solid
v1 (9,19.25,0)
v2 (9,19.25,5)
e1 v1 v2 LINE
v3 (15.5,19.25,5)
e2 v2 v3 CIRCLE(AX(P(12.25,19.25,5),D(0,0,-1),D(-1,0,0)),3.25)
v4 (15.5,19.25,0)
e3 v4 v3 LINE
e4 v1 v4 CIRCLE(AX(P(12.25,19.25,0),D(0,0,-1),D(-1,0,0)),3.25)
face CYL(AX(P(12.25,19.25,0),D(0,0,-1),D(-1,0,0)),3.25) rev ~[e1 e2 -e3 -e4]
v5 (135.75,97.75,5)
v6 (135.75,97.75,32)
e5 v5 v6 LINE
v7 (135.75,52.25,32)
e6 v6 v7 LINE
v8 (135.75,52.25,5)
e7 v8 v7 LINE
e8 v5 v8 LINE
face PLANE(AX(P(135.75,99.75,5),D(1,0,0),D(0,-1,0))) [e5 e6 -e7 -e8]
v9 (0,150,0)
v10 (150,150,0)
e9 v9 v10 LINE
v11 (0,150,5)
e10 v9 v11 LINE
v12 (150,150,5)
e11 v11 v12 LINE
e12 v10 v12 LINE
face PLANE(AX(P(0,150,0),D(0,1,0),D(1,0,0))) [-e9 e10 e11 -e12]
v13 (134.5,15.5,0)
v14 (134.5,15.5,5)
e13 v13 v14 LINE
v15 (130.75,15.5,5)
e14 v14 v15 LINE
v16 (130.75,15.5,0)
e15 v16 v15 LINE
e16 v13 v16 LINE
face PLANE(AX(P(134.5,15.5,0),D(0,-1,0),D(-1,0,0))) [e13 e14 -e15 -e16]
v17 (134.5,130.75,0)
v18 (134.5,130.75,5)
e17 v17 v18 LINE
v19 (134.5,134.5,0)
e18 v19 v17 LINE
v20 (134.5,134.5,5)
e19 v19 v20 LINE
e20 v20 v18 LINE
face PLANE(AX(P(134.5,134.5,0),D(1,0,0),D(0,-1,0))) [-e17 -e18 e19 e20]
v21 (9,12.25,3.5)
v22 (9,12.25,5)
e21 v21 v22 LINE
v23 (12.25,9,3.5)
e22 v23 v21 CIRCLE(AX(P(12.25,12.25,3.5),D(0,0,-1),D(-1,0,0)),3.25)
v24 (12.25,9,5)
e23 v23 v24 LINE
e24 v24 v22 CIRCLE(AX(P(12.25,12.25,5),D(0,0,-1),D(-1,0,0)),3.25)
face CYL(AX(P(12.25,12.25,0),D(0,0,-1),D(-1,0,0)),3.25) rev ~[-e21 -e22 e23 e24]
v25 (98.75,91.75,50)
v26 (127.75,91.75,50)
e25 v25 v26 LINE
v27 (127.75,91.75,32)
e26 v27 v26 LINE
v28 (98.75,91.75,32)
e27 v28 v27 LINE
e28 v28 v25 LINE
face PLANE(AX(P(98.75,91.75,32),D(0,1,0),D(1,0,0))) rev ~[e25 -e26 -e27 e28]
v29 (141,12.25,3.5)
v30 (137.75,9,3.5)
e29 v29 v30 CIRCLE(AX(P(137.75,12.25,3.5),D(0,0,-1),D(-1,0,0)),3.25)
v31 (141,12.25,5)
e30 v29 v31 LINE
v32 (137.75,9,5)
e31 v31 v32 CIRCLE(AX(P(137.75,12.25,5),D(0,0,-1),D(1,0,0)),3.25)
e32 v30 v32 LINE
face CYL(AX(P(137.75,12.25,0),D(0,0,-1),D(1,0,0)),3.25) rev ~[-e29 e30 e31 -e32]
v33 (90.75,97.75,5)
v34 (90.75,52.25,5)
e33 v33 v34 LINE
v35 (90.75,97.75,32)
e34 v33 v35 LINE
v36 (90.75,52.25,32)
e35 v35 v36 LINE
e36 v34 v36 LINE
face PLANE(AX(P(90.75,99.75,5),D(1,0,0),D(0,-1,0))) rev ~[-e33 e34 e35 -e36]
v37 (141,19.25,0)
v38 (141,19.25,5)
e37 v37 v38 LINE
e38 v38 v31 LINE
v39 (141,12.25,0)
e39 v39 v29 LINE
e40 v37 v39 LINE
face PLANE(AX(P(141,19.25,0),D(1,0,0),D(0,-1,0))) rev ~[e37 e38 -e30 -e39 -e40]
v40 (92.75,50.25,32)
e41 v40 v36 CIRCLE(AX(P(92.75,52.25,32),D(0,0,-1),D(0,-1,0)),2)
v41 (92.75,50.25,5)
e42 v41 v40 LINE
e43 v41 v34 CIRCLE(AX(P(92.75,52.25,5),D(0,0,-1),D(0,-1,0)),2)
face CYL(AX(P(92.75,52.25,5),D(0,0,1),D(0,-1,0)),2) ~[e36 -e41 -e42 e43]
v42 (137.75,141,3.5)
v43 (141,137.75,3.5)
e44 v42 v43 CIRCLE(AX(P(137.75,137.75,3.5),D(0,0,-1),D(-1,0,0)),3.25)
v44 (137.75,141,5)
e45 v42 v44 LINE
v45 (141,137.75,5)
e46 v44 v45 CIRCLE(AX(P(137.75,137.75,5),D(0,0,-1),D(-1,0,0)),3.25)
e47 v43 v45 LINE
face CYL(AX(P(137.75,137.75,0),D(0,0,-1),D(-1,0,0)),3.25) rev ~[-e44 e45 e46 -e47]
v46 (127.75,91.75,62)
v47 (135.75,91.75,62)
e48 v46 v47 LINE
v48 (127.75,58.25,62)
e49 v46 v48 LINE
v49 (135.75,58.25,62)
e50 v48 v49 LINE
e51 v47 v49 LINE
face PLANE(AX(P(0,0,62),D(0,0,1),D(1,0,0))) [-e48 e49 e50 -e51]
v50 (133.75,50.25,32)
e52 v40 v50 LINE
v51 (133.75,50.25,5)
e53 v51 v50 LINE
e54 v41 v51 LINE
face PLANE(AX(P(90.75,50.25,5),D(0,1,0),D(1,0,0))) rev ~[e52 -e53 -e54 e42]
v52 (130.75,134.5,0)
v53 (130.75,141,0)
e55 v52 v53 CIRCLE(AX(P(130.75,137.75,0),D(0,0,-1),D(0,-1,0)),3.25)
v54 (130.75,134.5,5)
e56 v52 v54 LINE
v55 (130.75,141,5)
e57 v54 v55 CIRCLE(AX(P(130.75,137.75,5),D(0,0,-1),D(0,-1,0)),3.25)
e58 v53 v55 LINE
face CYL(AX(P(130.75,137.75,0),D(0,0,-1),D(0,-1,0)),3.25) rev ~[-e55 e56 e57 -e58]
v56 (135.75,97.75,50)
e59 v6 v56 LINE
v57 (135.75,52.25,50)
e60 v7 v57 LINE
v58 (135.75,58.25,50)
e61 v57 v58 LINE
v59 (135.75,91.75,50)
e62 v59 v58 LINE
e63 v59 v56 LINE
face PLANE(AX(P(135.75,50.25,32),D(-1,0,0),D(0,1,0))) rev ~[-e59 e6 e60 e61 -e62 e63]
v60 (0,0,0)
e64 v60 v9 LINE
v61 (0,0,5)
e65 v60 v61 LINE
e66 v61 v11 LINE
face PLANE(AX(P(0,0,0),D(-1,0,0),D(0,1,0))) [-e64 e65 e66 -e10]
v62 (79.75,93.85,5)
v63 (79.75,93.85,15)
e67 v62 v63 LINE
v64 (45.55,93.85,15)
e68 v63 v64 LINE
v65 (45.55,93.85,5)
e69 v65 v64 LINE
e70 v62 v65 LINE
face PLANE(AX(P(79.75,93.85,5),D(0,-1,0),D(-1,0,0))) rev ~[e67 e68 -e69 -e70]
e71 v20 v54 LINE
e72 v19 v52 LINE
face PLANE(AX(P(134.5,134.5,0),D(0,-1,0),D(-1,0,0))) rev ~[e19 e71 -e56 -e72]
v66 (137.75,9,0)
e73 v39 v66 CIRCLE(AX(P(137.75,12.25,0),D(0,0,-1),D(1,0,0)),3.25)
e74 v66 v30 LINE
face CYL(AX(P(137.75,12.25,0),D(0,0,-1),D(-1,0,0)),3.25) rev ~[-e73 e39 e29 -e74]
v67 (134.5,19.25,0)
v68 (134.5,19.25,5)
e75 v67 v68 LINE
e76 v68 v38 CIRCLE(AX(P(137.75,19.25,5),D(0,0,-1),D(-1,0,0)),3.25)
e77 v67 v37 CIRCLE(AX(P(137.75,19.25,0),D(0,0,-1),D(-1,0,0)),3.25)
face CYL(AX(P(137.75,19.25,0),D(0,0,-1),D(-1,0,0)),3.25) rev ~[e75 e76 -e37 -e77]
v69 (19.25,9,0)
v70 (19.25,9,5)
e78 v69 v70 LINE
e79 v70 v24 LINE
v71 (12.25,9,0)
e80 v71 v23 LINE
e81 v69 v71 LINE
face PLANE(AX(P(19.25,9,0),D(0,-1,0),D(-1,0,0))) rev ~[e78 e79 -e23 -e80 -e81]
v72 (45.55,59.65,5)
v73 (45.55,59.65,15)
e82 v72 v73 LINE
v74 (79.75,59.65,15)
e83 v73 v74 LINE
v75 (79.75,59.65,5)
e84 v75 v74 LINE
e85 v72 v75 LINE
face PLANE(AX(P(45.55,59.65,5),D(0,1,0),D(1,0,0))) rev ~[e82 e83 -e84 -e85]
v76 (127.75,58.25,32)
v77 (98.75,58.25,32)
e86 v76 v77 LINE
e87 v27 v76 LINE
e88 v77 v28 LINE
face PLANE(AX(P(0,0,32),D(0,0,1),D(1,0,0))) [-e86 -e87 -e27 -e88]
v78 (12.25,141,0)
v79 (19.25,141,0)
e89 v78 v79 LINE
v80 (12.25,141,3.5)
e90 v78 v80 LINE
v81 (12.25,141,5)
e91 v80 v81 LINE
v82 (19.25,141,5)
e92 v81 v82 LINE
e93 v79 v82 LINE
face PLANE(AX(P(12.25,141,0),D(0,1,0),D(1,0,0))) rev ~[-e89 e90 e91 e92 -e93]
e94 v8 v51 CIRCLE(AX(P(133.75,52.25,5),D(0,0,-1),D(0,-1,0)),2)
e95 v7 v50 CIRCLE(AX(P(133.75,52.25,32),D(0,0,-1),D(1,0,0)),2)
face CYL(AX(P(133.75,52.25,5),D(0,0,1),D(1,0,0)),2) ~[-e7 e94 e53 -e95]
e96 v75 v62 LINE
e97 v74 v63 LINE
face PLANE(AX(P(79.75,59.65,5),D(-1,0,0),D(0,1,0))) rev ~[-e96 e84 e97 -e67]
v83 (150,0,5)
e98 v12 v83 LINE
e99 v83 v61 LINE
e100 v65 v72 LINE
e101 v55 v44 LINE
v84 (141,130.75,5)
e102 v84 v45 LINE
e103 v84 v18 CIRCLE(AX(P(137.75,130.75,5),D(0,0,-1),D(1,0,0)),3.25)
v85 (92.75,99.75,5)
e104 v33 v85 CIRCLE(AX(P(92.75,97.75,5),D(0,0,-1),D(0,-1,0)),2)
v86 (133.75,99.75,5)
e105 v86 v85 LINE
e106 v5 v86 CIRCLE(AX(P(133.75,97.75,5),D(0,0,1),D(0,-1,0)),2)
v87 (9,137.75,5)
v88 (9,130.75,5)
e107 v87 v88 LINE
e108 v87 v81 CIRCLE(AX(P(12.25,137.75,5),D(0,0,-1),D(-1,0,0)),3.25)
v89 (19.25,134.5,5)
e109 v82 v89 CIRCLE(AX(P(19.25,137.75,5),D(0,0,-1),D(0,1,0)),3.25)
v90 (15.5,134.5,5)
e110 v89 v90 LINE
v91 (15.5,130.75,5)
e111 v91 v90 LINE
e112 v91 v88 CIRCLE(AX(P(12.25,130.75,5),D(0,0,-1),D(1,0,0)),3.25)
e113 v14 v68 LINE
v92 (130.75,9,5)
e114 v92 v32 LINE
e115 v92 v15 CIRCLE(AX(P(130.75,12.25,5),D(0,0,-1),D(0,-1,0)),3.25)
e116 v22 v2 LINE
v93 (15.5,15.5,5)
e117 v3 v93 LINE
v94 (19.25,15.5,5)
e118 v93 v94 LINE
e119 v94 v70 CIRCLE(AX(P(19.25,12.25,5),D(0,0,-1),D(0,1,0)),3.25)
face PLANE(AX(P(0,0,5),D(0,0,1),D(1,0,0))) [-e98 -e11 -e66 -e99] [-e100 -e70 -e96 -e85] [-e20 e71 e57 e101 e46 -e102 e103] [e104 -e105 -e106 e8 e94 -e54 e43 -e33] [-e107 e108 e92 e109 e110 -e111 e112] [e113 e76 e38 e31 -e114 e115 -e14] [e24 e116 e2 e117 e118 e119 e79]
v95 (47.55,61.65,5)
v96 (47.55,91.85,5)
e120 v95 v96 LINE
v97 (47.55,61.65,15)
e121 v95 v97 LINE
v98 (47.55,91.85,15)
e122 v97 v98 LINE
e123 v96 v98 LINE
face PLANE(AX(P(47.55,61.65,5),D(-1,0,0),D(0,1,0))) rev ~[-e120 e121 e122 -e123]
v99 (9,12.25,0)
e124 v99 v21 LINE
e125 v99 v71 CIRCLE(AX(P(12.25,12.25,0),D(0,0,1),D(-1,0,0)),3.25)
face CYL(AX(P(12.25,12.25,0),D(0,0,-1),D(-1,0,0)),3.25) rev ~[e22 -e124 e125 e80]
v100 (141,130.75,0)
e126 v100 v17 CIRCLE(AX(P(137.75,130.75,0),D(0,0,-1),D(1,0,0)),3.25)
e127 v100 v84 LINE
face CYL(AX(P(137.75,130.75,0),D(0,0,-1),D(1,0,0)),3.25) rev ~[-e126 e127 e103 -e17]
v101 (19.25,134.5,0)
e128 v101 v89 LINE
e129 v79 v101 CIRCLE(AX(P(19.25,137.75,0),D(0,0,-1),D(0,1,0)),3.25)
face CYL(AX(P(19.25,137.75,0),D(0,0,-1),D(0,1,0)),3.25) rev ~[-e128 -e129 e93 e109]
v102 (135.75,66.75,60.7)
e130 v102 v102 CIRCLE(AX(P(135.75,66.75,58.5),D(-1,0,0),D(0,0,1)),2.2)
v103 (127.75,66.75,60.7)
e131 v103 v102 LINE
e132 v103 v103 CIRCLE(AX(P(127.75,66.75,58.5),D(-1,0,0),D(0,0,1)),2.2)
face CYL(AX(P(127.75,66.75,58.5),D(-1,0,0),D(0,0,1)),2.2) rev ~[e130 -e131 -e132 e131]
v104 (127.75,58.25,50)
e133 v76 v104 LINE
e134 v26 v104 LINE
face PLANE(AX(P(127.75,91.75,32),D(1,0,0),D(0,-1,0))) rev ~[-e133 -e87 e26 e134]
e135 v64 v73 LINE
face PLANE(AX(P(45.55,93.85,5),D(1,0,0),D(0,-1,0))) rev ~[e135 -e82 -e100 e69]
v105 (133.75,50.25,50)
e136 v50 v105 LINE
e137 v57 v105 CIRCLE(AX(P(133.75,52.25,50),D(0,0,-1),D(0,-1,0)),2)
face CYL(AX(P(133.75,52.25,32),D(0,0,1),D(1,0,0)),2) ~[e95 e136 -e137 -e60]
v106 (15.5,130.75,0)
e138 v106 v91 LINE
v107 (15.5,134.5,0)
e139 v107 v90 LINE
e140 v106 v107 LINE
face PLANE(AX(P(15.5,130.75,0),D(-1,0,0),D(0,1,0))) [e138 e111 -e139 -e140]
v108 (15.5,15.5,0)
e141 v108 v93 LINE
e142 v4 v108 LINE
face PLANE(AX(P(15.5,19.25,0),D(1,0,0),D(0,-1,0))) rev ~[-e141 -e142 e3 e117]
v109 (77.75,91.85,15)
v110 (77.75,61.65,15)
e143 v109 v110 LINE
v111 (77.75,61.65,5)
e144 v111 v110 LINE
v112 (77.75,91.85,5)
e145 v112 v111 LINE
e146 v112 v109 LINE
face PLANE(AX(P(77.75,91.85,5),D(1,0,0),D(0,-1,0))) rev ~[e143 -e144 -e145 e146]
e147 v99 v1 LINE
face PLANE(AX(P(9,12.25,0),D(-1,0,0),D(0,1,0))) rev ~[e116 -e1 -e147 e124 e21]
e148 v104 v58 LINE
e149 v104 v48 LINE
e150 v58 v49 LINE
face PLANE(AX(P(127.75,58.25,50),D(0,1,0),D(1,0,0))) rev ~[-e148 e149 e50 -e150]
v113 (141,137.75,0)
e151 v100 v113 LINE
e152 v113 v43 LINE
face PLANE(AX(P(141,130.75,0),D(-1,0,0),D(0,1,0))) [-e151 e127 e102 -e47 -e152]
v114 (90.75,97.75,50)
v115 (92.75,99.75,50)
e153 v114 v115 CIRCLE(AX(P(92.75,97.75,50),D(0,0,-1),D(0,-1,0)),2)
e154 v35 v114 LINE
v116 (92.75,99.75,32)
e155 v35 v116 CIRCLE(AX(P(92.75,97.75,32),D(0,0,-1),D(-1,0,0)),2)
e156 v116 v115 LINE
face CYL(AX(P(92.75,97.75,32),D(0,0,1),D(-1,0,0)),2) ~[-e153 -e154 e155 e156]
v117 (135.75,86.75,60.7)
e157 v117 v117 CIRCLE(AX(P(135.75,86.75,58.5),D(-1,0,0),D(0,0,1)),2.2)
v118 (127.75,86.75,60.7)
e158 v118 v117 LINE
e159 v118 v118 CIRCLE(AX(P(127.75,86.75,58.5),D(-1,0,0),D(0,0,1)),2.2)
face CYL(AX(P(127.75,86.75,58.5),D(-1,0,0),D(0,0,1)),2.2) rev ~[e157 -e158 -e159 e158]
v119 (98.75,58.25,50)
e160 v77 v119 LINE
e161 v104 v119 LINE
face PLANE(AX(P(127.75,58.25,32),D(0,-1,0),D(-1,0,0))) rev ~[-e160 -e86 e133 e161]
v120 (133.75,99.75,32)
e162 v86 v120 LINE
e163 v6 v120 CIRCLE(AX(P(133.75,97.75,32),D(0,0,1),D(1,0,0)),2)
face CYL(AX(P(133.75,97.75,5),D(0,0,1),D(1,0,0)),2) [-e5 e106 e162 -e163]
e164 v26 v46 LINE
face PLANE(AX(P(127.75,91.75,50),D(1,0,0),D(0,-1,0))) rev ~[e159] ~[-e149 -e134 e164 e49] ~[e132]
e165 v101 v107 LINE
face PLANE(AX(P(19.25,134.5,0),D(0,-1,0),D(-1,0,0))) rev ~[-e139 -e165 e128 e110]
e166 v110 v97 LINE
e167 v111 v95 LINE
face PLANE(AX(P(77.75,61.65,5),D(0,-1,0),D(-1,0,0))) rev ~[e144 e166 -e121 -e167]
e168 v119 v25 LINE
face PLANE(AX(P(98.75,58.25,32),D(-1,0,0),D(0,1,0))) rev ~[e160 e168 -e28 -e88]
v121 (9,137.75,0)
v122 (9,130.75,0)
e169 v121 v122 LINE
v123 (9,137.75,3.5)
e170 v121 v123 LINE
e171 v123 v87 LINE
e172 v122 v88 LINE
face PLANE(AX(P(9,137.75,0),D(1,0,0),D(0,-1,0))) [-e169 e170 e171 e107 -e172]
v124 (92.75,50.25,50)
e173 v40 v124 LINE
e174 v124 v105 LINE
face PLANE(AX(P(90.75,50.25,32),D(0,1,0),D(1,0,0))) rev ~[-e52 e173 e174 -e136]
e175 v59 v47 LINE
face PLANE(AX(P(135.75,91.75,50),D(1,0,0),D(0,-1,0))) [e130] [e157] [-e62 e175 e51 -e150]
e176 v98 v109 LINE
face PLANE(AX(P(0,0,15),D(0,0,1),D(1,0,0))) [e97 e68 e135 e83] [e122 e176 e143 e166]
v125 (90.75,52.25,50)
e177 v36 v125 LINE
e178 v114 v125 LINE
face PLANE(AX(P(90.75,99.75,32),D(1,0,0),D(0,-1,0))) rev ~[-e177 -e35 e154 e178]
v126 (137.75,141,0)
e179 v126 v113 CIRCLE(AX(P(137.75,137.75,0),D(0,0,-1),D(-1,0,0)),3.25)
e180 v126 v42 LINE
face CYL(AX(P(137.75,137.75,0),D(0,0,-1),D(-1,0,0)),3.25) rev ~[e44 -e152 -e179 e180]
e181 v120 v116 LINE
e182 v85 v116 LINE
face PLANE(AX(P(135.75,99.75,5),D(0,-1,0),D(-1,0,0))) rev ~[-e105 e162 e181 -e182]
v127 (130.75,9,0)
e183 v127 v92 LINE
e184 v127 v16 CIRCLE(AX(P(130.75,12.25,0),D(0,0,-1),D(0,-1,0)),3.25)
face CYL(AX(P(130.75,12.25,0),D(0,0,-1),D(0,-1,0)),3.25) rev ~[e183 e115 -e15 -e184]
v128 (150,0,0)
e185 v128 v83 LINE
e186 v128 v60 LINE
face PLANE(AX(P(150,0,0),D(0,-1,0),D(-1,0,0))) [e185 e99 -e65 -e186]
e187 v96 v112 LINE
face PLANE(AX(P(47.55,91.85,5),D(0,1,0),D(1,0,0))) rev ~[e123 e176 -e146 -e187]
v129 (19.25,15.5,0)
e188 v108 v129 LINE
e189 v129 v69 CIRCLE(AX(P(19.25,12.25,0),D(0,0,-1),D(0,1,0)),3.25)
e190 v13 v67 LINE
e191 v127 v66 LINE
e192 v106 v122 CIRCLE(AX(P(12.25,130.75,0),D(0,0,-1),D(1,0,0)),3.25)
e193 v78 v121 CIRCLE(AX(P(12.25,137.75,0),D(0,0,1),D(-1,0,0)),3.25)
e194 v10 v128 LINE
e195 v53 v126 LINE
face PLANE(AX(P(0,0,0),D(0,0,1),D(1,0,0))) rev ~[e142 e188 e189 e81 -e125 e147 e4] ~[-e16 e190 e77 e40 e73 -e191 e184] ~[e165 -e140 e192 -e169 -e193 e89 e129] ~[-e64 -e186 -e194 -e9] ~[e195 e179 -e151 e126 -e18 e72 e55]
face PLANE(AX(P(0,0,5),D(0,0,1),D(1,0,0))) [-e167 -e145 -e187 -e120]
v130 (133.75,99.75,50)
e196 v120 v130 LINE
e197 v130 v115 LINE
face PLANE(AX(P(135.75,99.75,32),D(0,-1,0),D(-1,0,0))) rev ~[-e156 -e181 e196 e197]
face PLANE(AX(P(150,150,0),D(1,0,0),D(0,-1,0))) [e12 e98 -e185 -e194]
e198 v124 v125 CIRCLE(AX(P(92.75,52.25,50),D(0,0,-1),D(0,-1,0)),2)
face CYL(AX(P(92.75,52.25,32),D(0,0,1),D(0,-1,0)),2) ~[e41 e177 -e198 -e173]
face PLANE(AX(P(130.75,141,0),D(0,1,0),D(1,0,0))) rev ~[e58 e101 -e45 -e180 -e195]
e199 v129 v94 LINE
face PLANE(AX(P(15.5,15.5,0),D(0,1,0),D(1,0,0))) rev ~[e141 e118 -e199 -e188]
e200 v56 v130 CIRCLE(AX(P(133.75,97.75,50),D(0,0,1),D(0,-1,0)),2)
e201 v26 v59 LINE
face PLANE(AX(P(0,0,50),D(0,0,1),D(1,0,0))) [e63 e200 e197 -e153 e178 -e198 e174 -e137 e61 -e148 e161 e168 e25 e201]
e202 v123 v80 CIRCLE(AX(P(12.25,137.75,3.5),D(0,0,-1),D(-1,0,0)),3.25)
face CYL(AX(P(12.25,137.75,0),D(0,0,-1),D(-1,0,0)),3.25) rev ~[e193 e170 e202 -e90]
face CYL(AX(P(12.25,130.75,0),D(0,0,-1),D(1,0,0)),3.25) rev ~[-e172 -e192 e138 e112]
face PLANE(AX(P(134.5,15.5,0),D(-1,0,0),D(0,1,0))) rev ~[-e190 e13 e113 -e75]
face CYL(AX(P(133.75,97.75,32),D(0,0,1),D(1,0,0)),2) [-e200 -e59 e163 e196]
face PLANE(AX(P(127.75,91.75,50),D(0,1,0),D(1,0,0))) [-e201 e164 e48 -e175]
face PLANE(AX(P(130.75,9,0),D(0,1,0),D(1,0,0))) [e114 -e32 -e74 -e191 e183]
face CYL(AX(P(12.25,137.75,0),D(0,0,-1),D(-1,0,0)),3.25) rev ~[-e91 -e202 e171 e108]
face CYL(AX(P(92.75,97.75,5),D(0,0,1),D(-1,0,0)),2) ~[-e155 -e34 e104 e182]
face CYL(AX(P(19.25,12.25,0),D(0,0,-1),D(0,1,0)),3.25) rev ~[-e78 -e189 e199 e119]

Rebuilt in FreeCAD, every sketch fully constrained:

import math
import FreeCAD as App
import Part
import Sketcher


def edges_at(feature, points):
    """Names of the edges that pass closest to the given points."""
    edges = feature.Shape.Edges
    near = lambda p: min(range(len(edges)), key=lambda i: edges[i].distToShape(Part.Vertex(*p))[0])
    return sorted({f"Edge{near(p) + 1}" for p in points})


def add_polygon(sketch, points):
    """Adds a closed chain of lines whose ends are joined by coincident constraints."""
    first, n = sketch.GeometryCount, len(points)
    for a, b in zip(points, points[1:] + points[:1]):
        sketch.addGeometry(Part.LineSegment(App.Vector(*a, 0), App.Vector(*b, 0)), False)
    for i in range(n):
        sketch.addConstraint(Sketcher.Constraint("Coincident", first + i, 2, first + (i + 1) % n, 1))

doc = App.newDocument("Part")
body = doc.addObject("PartDesign::Body", "Body")

# Sketch on XY plane
sketch1 = doc.addObject("Sketcher::SketchObject", "Sketch")
body.addObject(sketch1)
sketch1.AttachmentSupport = (doc.XY_Plane, [""])
sketch1.MapMode = "FlatFace"
add_polygon(sketch1, [(150, 150), (0, 150), (0, 0), (150, 0)])  # lines 0-3
sketch1.addConstraint(Sketcher.Constraint("Horizontal", 0))
sketch1.addConstraint(Sketcher.Constraint("Vertical", 1))
sketch1.addConstraint(Sketcher.Constraint("Horizontal", 2))
sketch1.addConstraint(Sketcher.Constraint("Vertical", 3))
sketch1.addConstraint(Sketcher.Constraint("Coincident", 1, 2, -1, 1))
sketch1.addConstraint(Sketcher.Constraint("Equal", 2, 1))
sketch1.addConstraint(Sketcher.Constraint("DistanceX", 0, 2, 0, 1, 150.0))
pad1 = doc.addObject("PartDesign::Pad", "Pad")
body.addObject(pad1)
pad1.Profile = sketch1
pad1.Length = 5

# Sketch on XY plane
sketch2 = doc.addObject("Sketcher::SketchObject", "Sketch001")
body.addObject(sketch2)
sketch2.AttachmentSupport = (doc.XY_Plane, [""])
sketch2.MapMode = "FlatFace"
sketch2.addGeometry(Part.Circle(App.Vector(137.8, 12.2, 0), App.Vector(0, 0, 1), 3.2), False)
sketch2.addGeometry(Part.Circle(App.Vector(12.2, 12.2, 0), App.Vector(0, 0, 1), 3.2), False)
sketch2.addGeometry(Part.Circle(App.Vector(137.8, 137.8, 0), App.Vector(0, 0, 1), 3.2), False)
sketch2.addGeometry(Part.Circle(App.Vector(12.2, 137.8, 0), App.Vector(0, 0, 1), 3.2), False)
sketch2.addConstraint(Sketcher.Constraint("Equal", 0, 1))
sketch2.addConstraint(Sketcher.Constraint("Equal", 1, 2))
sketch2.addConstraint(Sketcher.Constraint("Equal", 2, 3))
sketch2.addConstraint(Sketcher.Constraint("Horizontal", 0, 3, 1, 3))
sketch2.addConstraint(Sketcher.Constraint("Horizontal", 2, 3, 3, 3))
sketch2.addConstraint(Sketcher.Constraint("Vertical", 0, 3, 2, 3))
sketch2.addConstraint(Sketcher.Constraint("Vertical", 1, 3, 3, 3))
sketch2.addConstraint(Sketcher.Constraint("Diameter", 0, 6.5))
sketch2.addConstraint(Sketcher.Constraint("DistanceX", 1, 3, 0, 3, 125.5))
sketch2.addConstraint(Sketcher.Constraint("DistanceY", 0, 3, 2, 3, 125.5))
sketch2.addConstraint(Sketcher.Constraint("DistanceY", -1, 1, 0, 3, 12.25))
sketch2.addConstraint(Sketcher.Constraint("DistanceX", -1, 1, 1, 3, 12.25))
pocket1 = doc.addObject("PartDesign::Pocket", "Pocket")
body.addObject(pocket1)
pocket1.Profile = sketch2
pocket1.Length = 3.5
pocket1.Reversed = True

# Sketch on XY plane
sketch3 = doc.addObject("Sketcher::SketchObject", "Sketch002")
body.addObject(sketch3)
sketch3.AttachmentSupport = (doc.XY_Plane, [""])
sketch3.MapMode = "FlatFace"
sketch3.addGeometry(Part.ArcOfCircle(Part.Circle(App.Vector(12.2, 137.8, 0), App.Vector(0, 0, 1), 3.2), math.radians(90), math.radians(180)), False)
sketch3.addGeometry(Part.LineSegment(App.Vector(12.2, 141, 0), App.Vector(19.2, 141, 0)), False)
sketch3.addGeometry(Part.ArcOfCircle(Part.Circle(App.Vector(19.2, 137.8, 0), App.Vector(0, 0, 1), 3.2), math.radians(-90), math.radians(90)), False)
sketch3.addGeometry(Part.LineSegment(App.Vector(19.2, 134.5, 0), App.Vector(15.5, 134.5, 0)), False)
sketch3.addGeometry(Part.LineSegment(App.Vector(15.5, 134.5, 0), App.Vector(15.5, 130.8, 0)), False)
sketch3.addGeometry(Part.ArcOfCircle(Part.Circle(App.Vector(12.2, 130.8, 0), App.Vector(0, 0, 1), 3.2), math.radians(180), math.radians(360)), False)
sketch3.addGeometry(Part.LineSegment(App.Vector(9, 130.8, 0), App.Vector(9, 137.8, 0)), False)
sketch3.addConstraint(Sketcher.Constraint("Tangent", 0, 1, 1, 1))
sketch3.addConstraint(Sketcher.Constraint("Tangent", 1, 2, 2, 2))
sketch3.addConstraint(Sketcher.Constraint("Tangent", 2, 1, 3, 1))
sketch3.addConstraint(Sketcher.Constraint("Coincident", 3, 2, 4, 1))
sketch3.addConstraint(Sketcher.Constraint("Tangent", 4, 2, 5, 2))
sketch3.addConstraint(Sketcher.Constraint("Tangent", 5, 1, 6, 1))
sketch3.addConstraint(Sketcher.Constraint("Tangent", 6, 2, 0, 2))
sketch3.addConstraint(Sketcher.Constraint("Horizontal", 1))
sketch3.addConstraint(Sketcher.Constraint("Horizontal", 3))
sketch3.addConstraint(Sketcher.Constraint("Vertical", 4))
sketch3.addConstraint(Sketcher.Constraint("Vertical", 6))
sketch3.addConstraint(Sketcher.Constraint("Equal", 0, 2))
sketch3.addConstraint(Sketcher.Constraint("Equal", 2, 5))
sketch3.addConstraint(Sketcher.Constraint("Equal", 3, 4))
sketch3.addConstraint(Sketcher.Constraint("DistanceX", 1, 1, 1, 2, 7.0))
sketch3.addConstraint(Sketcher.Constraint("Radius", 0, 3.25))
sketch3.addConstraint(Sketcher.Constraint("DistanceY", -1, 1, 0, 1, 141.0))
sketch3.addConstraint(Sketcher.Constraint("DistanceX", -1, 1, 5, 1, 9.0))
pocket2 = doc.addObject("PartDesign::Pocket", "Pocket001")
body.addObject(pocket2)
pocket2.Profile = sketch3
pocket2.Length = 5
pocket2.Reversed = True

# Sketch on XY plane
sketch4 = doc.addObject("Sketcher::SketchObject", "Sketch003")
body.addObject(sketch4)
sketch4.AttachmentSupport = (doc.XY_Plane, [""])
sketch4.MapMode = "FlatFace"
sketch4.addGeometry(Part.ArcOfCircle(Part.Circle(App.Vector(12.2, 12.2, 0), App.Vector(0, 0, 1), 3.2), math.radians(180), math.radians(270)), False)
sketch4.addGeometry(Part.LineSegment(App.Vector(9, 12.2, 0), App.Vector(9, 19.2, 0)), False)
sketch4.addGeometry(Part.ArcOfCircle(Part.Circle(App.Vector(12.2, 19.2, 0), App.Vector(0, 0, 1), 3.2), math.radians(0), math.radians(180)), False)
sketch4.addGeometry(Part.LineSegment(App.Vector(15.5, 19.2, 0), App.Vector(15.5, 15.5, 0)), False)
sketch4.addGeometry(Part.LineSegment(App.Vector(15.5, 15.5, 0), App.Vector(19.2, 15.5, 0)), False)
sketch4.addGeometry(Part.ArcOfCircle(Part.Circle(App.Vector(19.2, 12.2, 0), App.Vector(0, 0, 1), 3.2), math.radians(-90), math.radians(90)), False)
sketch4.addGeometry(Part.LineSegment(App.Vector(19.2, 9, 0), App.Vector(12.2, 9, 0)), False)
sketch4.addGeometry(Part.ArcOfCircle(Part.Circle(App.Vector(137.8, 12.2, 0), App.Vector(0, 0, 1), 3.2), math.radians(-90), math.radians(0)), False)
sketch4.addGeometry(Part.LineSegment(App.Vector(137.8, 9, 0), App.Vector(130.8, 9, 0)), False)
sketch4.addGeometry(Part.ArcOfCircle(Part.Circle(App.Vector(130.8, 12.2, 0), App.Vector(0, 0, 1), 3.2), math.radians(90), math.radians(270)), False)
sketch4.addGeometry(Part.LineSegment(App.Vector(130.8, 15.5, 0), App.Vector(134.5, 15.5, 0)), False)
sketch4.addGeometry(Part.LineSegment(App.Vector(134.5, 15.5, 0), App.Vector(134.5, 19.2, 0)), False)
sketch4.addGeometry(Part.ArcOfCircle(Part.Circle(App.Vector(137.8, 19.2, 0), App.Vector(0, 0, 1), 3.2), math.radians(0), math.radians(180)), False)
sketch4.addGeometry(Part.LineSegment(App.Vector(141, 19.2, 0), App.Vector(141, 12.2, 0)), False)
sketch4.addGeometry(Part.ArcOfCircle(Part.Circle(App.Vector(137.8, 137.8, 0), App.Vector(0, 0, 1), 3.2), math.radians(0), math.radians(90)), False)
sketch4.addGeometry(Part.LineSegment(App.Vector(141, 137.8, 0), App.Vector(141, 130.8, 0)), False)
sketch4.addGeometry(Part.ArcOfCircle(Part.Circle(App.Vector(137.8, 130.8, 0), App.Vector(0, 0, 1), 3.2), math.radians(180), math.radians(360)), False)
sketch4.addGeometry(Part.LineSegment(App.Vector(134.5, 130.8, 0), App.Vector(134.5, 134.5, 0)), False)
sketch4.addGeometry(Part.LineSegment(App.Vector(134.5, 134.5, 0), App.Vector(130.8, 134.5, 0)), False)
sketch4.addGeometry(Part.ArcOfCircle(Part.Circle(App.Vector(130.8, 137.8, 0), App.Vector(0, 0, 1), 3.2), math.radians(90), math.radians(270)), False)
sketch4.addGeometry(Part.LineSegment(App.Vector(130.8, 141, 0), App.Vector(137.8, 141, 0)), False)
sketch4.addConstraint(Sketcher.Constraint("Tangent", 0, 1, 1, 1))
sketch4.addConstraint(Sketcher.Constraint("Tangent", 1, 2, 2, 2))
sketch4.addConstraint(Sketcher.Constraint("Tangent", 2, 1, 3, 1))
sketch4.addConstraint(Sketcher.Constraint("Coincident", 3, 2, 4, 1))
sketch4.addConstraint(Sketcher.Constraint("Tangent", 4, 2, 5, 2))
sketch4.addConstraint(Sketcher.Constraint("Tangent", 5, 1, 6, 1))
sketch4.addConstraint(Sketcher.Constraint("Tangent", 6, 2, 0, 2))
sketch4.addConstraint(Sketcher.Constraint("Tangent", 7, 1, 8, 1))
sketch4.addConstraint(Sketcher.Constraint("Tangent", 8, 2, 9, 2))
sketch4.addConstraint(Sketcher.Constraint("Tangent", 9, 1, 10, 1))
sketch4.addConstraint(Sketcher.Constraint("Coincident", 10, 2, 11, 1))
sketch4.addConstraint(Sketcher.Constraint("Tangent", 11, 2, 12, 2))
sketch4.addConstraint(Sketcher.Constraint("Tangent", 12, 1, 13, 1))
sketch4.addConstraint(Sketcher.Constraint("Tangent", 13, 2, 7, 2))
sketch4.addConstraint(Sketcher.Constraint("Tangent", 14, 1, 15, 1))
sketch4.addConstraint(Sketcher.Constraint("Tangent", 15, 2, 16, 2))
sketch4.addConstraint(Sketcher.Constraint("Tangent", 16, 1, 17, 1))
sketch4.addConstraint(Sketcher.Constraint("Coincident", 17, 2, 18, 1))
sketch4.addConstraint(Sketcher.Constraint("Tangent", 18, 2, 19, 2))
sketch4.addConstraint(Sketcher.Constraint("Tangent", 19, 1, 20, 1))
sketch4.addConstraint(Sketcher.Constraint("Tangent", 20, 2, 14, 2))
sketch4.addConstraint(Sketcher.Constraint("Vertical", 1))
sketch4.addConstraint(Sketcher.Constraint("Vertical", 3))
sketch4.addConstraint(Sketcher.Constraint("Horizontal", 4))
sketch4.addConstraint(Sketcher.Constraint("Horizontal", 6))
sketch4.addConstraint(Sketcher.Constraint("Horizontal", 8))
sketch4.addConstraint(Sketcher.Constraint("Horizontal", 10))
sketch4.addConstraint(Sketcher.Constraint("Vertical", 11))
sketch4.addConstraint(Sketcher.Constraint("Vertical", 13))
sketch4.addConstraint(Sketcher.Constraint("Vertical", 15))
sketch4.addConstraint(Sketcher.Constraint("Vertical", 17))
sketch4.addConstraint(Sketcher.Constraint("Horizontal", 18))
sketch4.addConstraint(Sketcher.Constraint("Horizontal", 20))
sketch4.addConstraint(Sketcher.Constraint("Equal", 0, 2))
sketch4.addConstraint(Sketcher.Constraint("Equal", 2, 5))
sketch4.addConstraint(Sketcher.Constraint("Equal", 5, 7))
sketch4.addConstraint(Sketcher.Constraint("Equal", 7, 9))
sketch4.addConstraint(Sketcher.Constraint("Equal", 9, 12))
sketch4.addConstraint(Sketcher.Constraint("Equal", 12, 14))
sketch4.addConstraint(Sketcher.Constraint("Equal", 14, 16))
sketch4.addConstraint(Sketcher.Constraint("Equal", 16, 19))
sketch4.addConstraint(Sketcher.Constraint("Horizontal", 5, 3, 7, 3))
sketch4.addConstraint(Sketcher.Constraint("Horizontal", 2, 3, 12, 3))
sketch4.addConstraint(Sketcher.Constraint("Vertical", 12, 3, 14, 3))
sketch4.addConstraint(Sketcher.Constraint("Vertical", 9, 3, 19, 3))
sketch4.addConstraint(Sketcher.Constraint("Equal", 6, 8))
sketch4.addConstraint(Sketcher.Constraint("Equal", 20, 1))
sketch4.addConstraint(Sketcher.Constraint("Equal", 13, 15))
sketch4.addConstraint(Sketcher.Constraint("DistanceX", 6, 2, 6, 1, 7.0))
sketch4.addConstraint(Sketcher.Constraint("Radius", 0, 3.25))
sketch4.addConstraint(Sketcher.Constraint("DistanceX", -1, 1, 0, 1, 9.0))
sketch4.addConstraint(Sketcher.Constraint("DistanceY", -1, 1, 5, 1, 9.0))
sketch4.addConstraint(Sketcher.Constraint("DistanceX", -1, 1, 12, 1, 141.0))
sketch4.addConstraint(Sketcher.Constraint("DistanceY", -1, 1, 19, 1, 141.0))
pocket3 = doc.addObject("PartDesign::Pocket", "Pocket002")
body.addObject(pocket3)
pocket3.Profile = sketch4
pocket3.Length = 5
pocket3.Reversed = True

# Sketch on XY plane
sketch5 = doc.addObject("Sketcher::SketchObject", "Sketch004")
body.addObject(sketch5)
sketch5.AttachmentSupport = (doc.XY_Plane, [""])
sketch5.MapMode = "FlatFace"
sketch5.AttachmentOffset = App.Placement(App.Vector(0, 0, 5), App.Rotation())
add_polygon(sketch5, [(136, 100), (91, 100), (91, 50), (136, 50)])  # lines 0-3
sketch5.addConstraint(Sketcher.Constraint("Horizontal", 0))
sketch5.addConstraint(Sketcher.Constraint("Vertical", 1))
sketch5.addConstraint(Sketcher.Constraint("Horizontal", 2))
sketch5.addConstraint(Sketcher.Constraint("Vertical", 3))
sketch5.addConstraint(Sketcher.Constraint("DistanceX", 0, 2, 0, 1, 45.0))
sketch5.addConstraint(Sketcher.Constraint("DistanceY", 1, 2, 1, 1, 49.5))
sketch5.addConstraint(Sketcher.Constraint("DistanceX", -1, 1, 0, 2, 90.75))
sketch5.addConstraint(Sketcher.Constraint("DistanceY", -1, 1, 0, 2, 99.75))
pad2 = doc.addObject("PartDesign::Pad", "Pad001")
body.addObject(pad2)
pad2.Profile = sketch5
pad2.Length = 27

# Sketch on XY plane
sketch6 = doc.addObject("Sketcher::SketchObject", "Sketch005")
body.addObject(sketch6)
sketch6.AttachmentSupport = (doc.XY_Plane, [""])
sketch6.MapMode = "FlatFace"
sketch6.AttachmentOffset = App.Placement(App.Vector(0, 0, 32), App.Rotation())
add_polygon(sketch6, [(136, 100), (91, 100), (91, 50), (136, 50)])  # lines 0-3
add_polygon(sketch6, [(128, 92), (128, 58), (99, 58), (99, 92)])  # lines 4-7
sketch6.addConstraint(Sketcher.Constraint("Horizontal", 0))
sketch6.addConstraint(Sketcher.Constraint("Vertical", 1))
sketch6.addConstraint(Sketcher.Constraint("Horizontal", 2))
sketch6.addConstraint(Sketcher.Constraint("Vertical", 3))
sketch6.addConstraint(Sketcher.Constraint("Vertical", 4))
sketch6.addConstraint(Sketcher.Constraint("Horizontal", 5))
sketch6.addConstraint(Sketcher.Constraint("Vertical", 6))
sketch6.addConstraint(Sketcher.Constraint("Horizontal", 7))
sketch6.addConstraint(Sketcher.Constraint("DistanceX", 4, 2, 2, 2, 8.0))
sketch6.addConstraint(Sketcher.Constraint("DistanceY", 2, 2, 4, 2, 8.0))
sketch6.addConstraint(Sketcher.Constraint("DistanceX", 1, 2, 5, 2, 8.0))
sketch6.addConstraint(Sketcher.Constraint("DistanceY", 6, 2, 0, 2, 8.0))
sketch6.addConstraint(Sketcher.Constraint("DistanceX", 0, 2, 0, 1, 45.0))
sketch6.addConstraint(Sketcher.Constraint("DistanceY", 1, 2, 1, 1, 49.5))
sketch6.addConstraint(Sketcher.Constraint("DistanceX", -1, 1, 0, 2, 90.75))
sketch6.addConstraint(Sketcher.Constraint("DistanceY", -1, 1, 0, 2, 99.75))
pad3 = doc.addObject("PartDesign::Pad", "Pad002")
body.addObject(pad3)
pad3.Profile = sketch6
pad3.Length = 18

# Sketch on XY plane
sketch7 = doc.addObject("Sketcher::SketchObject", "Sketch006")
body.addObject(sketch7)
sketch7.AttachmentSupport = (doc.XY_Plane, [""])
sketch7.MapMode = "FlatFace"
sketch7.AttachmentOffset = App.Placement(App.Vector(0, 0, 50), App.Rotation())
add_polygon(sketch7, [(136, 92), (128, 92), (128, 58), (136, 58)])  # lines 0-3
sketch7.addConstraint(Sketcher.Constraint("Horizontal", 0))
sketch7.addConstraint(Sketcher.Constraint("Vertical", 1))
sketch7.addConstraint(Sketcher.Constraint("Horizontal", 2))
sketch7.addConstraint(Sketcher.Constraint("Vertical", 3))
sketch7.addConstraint(Sketcher.Constraint("DistanceX", 0, 2, 0, 1, 8.0))
sketch7.addConstraint(Sketcher.Constraint("DistanceY", 1, 2, 1, 1, 33.5))
sketch7.addConstraint(Sketcher.Constraint("DistanceX", -1, 1, 0, 2, 127.75))
sketch7.addConstraint(Sketcher.Constraint("DistanceY", -1, 1, 0, 2, 91.75))
pad4 = doc.addObject("PartDesign::Pad", "Pad003")
body.addObject(pad4)
pad4.Profile = sketch7
pad4.Length = 12

# Sketch on YZ plane
sketch8 = doc.addObject("Sketcher::SketchObject", "Sketch007")
body.addObject(sketch8)
sketch8.AttachmentSupport = (doc.YZ_Plane, [""])
sketch8.MapMode = "FlatFace"
sketch8.AttachmentOffset = App.Placement(App.Vector(0, 0, 127.75), App.Rotation())
sketch8.addGeometry(Part.Circle(App.Vector(86.8, 58.5, 0), App.Vector(0, 0, 1), 2.2), False)
sketch8.addGeometry(Part.Circle(App.Vector(66.8, 58.5, 0), App.Vector(0, 0, 1), 2.2), False)
sketch8.addConstraint(Sketcher.Constraint("Equal", 0, 1))
sketch8.addConstraint(Sketcher.Constraint("Horizontal", 0, 3, 1, 3))
sketch8.addConstraint(Sketcher.Constraint("Diameter", 0, 4.4))
sketch8.addConstraint(Sketcher.Constraint("DistanceX", 1, 3, 0, 3, 20.0))
sketch8.addConstraint(Sketcher.Constraint("DistanceY", -1, 1, 0, 3, 58.5))
sketch8.addConstraint(Sketcher.Constraint("DistanceX", -1, 1, 0, 3, 86.75))
pocket4 = doc.addObject("PartDesign::Pocket", "Pocket003")
body.addObject(pocket4)
pocket4.Profile = sketch8
pocket4.Length = 8
pocket4.Reversed = True
doc.recompute()

fillet = doc.addObject("PartDesign::Fillet", "Fillet")
body.addObject(fillet)
fillet.Base = (pocket4, edges_at(pocket4, [
    (90.75, 99.75, 41),
    (90.75, 99.75, 18.5),
    (135.75, 99.75, 41),
    (135.75, 99.75, 18.5),
    (90.75, 50.25, 41),
    (90.75, 50.25, 18.5),
    (135.75, 50.25, 41),
    (135.75, 50.25, 18.5),
]))
fillet.Radius = 2

# Sketch on XY plane
sketch9 = doc.addObject("Sketcher::SketchObject", "Sketch008")
body.addObject(sketch9)
sketch9.AttachmentSupport = (doc.XY_Plane, [""])
sketch9.MapMode = "FlatFace"
sketch9.AttachmentOffset = App.Placement(App.Vector(0, 0, 5), App.Rotation())
add_polygon(sketch9, [(46, 94), (46, 60), (80, 60), (80, 94)])  # lines 0-3
add_polygon(sketch9, [(78, 92), (78, 62), (48, 62), (48, 92)])  # lines 4-7
sketch9.addConstraint(Sketcher.Constraint("Vertical", 0))
sketch9.addConstraint(Sketcher.Constraint("Horizontal", 1))
sketch9.addConstraint(Sketcher.Constraint("Vertical", 2))
sketch9.addConstraint(Sketcher.Constraint("Horizontal", 3))
sketch9.addConstraint(Sketcher.Constraint("Vertical", 4))
sketch9.addConstraint(Sketcher.Constraint("Horizontal", 5))
sketch9.addConstraint(Sketcher.Constraint("Vertical", 6))
sketch9.addConstraint(Sketcher.Constraint("Horizontal", 7))
sketch9.addConstraint(Sketcher.Constraint("Equal", 3, 0))
sketch9.addConstraint(Sketcher.Constraint("Equal", 7, 4))
sketch9.addConstraint(Sketcher.Constraint("DistanceX", 5, 2, 5, 1, 30.2))
sketch9.addConstraint(Sketcher.Constraint("DistanceX", 4, 2, 1, 2, 2.0))
sketch9.addConstraint(Sketcher.Constraint("DistanceY", 1, 2, 4, 2, 2.0))
sketch9.addConstraint(Sketcher.Constraint("DistanceX", 0, 2, 5, 2, 2.0))
sketch9.addConstraint(Sketcher.Constraint("DistanceX", -1, 1, 0, 2, 45.55))
sketch9.addConstraint(Sketcher.Constraint("DistanceY", -1, 1, 0, 2, 59.65))
pad5 = doc.addObject("PartDesign::Pad", "Pad004")
body.addObject(pad5)
pad5.Profile = sketch9
pad5.Length = 10

doc.recompute()
